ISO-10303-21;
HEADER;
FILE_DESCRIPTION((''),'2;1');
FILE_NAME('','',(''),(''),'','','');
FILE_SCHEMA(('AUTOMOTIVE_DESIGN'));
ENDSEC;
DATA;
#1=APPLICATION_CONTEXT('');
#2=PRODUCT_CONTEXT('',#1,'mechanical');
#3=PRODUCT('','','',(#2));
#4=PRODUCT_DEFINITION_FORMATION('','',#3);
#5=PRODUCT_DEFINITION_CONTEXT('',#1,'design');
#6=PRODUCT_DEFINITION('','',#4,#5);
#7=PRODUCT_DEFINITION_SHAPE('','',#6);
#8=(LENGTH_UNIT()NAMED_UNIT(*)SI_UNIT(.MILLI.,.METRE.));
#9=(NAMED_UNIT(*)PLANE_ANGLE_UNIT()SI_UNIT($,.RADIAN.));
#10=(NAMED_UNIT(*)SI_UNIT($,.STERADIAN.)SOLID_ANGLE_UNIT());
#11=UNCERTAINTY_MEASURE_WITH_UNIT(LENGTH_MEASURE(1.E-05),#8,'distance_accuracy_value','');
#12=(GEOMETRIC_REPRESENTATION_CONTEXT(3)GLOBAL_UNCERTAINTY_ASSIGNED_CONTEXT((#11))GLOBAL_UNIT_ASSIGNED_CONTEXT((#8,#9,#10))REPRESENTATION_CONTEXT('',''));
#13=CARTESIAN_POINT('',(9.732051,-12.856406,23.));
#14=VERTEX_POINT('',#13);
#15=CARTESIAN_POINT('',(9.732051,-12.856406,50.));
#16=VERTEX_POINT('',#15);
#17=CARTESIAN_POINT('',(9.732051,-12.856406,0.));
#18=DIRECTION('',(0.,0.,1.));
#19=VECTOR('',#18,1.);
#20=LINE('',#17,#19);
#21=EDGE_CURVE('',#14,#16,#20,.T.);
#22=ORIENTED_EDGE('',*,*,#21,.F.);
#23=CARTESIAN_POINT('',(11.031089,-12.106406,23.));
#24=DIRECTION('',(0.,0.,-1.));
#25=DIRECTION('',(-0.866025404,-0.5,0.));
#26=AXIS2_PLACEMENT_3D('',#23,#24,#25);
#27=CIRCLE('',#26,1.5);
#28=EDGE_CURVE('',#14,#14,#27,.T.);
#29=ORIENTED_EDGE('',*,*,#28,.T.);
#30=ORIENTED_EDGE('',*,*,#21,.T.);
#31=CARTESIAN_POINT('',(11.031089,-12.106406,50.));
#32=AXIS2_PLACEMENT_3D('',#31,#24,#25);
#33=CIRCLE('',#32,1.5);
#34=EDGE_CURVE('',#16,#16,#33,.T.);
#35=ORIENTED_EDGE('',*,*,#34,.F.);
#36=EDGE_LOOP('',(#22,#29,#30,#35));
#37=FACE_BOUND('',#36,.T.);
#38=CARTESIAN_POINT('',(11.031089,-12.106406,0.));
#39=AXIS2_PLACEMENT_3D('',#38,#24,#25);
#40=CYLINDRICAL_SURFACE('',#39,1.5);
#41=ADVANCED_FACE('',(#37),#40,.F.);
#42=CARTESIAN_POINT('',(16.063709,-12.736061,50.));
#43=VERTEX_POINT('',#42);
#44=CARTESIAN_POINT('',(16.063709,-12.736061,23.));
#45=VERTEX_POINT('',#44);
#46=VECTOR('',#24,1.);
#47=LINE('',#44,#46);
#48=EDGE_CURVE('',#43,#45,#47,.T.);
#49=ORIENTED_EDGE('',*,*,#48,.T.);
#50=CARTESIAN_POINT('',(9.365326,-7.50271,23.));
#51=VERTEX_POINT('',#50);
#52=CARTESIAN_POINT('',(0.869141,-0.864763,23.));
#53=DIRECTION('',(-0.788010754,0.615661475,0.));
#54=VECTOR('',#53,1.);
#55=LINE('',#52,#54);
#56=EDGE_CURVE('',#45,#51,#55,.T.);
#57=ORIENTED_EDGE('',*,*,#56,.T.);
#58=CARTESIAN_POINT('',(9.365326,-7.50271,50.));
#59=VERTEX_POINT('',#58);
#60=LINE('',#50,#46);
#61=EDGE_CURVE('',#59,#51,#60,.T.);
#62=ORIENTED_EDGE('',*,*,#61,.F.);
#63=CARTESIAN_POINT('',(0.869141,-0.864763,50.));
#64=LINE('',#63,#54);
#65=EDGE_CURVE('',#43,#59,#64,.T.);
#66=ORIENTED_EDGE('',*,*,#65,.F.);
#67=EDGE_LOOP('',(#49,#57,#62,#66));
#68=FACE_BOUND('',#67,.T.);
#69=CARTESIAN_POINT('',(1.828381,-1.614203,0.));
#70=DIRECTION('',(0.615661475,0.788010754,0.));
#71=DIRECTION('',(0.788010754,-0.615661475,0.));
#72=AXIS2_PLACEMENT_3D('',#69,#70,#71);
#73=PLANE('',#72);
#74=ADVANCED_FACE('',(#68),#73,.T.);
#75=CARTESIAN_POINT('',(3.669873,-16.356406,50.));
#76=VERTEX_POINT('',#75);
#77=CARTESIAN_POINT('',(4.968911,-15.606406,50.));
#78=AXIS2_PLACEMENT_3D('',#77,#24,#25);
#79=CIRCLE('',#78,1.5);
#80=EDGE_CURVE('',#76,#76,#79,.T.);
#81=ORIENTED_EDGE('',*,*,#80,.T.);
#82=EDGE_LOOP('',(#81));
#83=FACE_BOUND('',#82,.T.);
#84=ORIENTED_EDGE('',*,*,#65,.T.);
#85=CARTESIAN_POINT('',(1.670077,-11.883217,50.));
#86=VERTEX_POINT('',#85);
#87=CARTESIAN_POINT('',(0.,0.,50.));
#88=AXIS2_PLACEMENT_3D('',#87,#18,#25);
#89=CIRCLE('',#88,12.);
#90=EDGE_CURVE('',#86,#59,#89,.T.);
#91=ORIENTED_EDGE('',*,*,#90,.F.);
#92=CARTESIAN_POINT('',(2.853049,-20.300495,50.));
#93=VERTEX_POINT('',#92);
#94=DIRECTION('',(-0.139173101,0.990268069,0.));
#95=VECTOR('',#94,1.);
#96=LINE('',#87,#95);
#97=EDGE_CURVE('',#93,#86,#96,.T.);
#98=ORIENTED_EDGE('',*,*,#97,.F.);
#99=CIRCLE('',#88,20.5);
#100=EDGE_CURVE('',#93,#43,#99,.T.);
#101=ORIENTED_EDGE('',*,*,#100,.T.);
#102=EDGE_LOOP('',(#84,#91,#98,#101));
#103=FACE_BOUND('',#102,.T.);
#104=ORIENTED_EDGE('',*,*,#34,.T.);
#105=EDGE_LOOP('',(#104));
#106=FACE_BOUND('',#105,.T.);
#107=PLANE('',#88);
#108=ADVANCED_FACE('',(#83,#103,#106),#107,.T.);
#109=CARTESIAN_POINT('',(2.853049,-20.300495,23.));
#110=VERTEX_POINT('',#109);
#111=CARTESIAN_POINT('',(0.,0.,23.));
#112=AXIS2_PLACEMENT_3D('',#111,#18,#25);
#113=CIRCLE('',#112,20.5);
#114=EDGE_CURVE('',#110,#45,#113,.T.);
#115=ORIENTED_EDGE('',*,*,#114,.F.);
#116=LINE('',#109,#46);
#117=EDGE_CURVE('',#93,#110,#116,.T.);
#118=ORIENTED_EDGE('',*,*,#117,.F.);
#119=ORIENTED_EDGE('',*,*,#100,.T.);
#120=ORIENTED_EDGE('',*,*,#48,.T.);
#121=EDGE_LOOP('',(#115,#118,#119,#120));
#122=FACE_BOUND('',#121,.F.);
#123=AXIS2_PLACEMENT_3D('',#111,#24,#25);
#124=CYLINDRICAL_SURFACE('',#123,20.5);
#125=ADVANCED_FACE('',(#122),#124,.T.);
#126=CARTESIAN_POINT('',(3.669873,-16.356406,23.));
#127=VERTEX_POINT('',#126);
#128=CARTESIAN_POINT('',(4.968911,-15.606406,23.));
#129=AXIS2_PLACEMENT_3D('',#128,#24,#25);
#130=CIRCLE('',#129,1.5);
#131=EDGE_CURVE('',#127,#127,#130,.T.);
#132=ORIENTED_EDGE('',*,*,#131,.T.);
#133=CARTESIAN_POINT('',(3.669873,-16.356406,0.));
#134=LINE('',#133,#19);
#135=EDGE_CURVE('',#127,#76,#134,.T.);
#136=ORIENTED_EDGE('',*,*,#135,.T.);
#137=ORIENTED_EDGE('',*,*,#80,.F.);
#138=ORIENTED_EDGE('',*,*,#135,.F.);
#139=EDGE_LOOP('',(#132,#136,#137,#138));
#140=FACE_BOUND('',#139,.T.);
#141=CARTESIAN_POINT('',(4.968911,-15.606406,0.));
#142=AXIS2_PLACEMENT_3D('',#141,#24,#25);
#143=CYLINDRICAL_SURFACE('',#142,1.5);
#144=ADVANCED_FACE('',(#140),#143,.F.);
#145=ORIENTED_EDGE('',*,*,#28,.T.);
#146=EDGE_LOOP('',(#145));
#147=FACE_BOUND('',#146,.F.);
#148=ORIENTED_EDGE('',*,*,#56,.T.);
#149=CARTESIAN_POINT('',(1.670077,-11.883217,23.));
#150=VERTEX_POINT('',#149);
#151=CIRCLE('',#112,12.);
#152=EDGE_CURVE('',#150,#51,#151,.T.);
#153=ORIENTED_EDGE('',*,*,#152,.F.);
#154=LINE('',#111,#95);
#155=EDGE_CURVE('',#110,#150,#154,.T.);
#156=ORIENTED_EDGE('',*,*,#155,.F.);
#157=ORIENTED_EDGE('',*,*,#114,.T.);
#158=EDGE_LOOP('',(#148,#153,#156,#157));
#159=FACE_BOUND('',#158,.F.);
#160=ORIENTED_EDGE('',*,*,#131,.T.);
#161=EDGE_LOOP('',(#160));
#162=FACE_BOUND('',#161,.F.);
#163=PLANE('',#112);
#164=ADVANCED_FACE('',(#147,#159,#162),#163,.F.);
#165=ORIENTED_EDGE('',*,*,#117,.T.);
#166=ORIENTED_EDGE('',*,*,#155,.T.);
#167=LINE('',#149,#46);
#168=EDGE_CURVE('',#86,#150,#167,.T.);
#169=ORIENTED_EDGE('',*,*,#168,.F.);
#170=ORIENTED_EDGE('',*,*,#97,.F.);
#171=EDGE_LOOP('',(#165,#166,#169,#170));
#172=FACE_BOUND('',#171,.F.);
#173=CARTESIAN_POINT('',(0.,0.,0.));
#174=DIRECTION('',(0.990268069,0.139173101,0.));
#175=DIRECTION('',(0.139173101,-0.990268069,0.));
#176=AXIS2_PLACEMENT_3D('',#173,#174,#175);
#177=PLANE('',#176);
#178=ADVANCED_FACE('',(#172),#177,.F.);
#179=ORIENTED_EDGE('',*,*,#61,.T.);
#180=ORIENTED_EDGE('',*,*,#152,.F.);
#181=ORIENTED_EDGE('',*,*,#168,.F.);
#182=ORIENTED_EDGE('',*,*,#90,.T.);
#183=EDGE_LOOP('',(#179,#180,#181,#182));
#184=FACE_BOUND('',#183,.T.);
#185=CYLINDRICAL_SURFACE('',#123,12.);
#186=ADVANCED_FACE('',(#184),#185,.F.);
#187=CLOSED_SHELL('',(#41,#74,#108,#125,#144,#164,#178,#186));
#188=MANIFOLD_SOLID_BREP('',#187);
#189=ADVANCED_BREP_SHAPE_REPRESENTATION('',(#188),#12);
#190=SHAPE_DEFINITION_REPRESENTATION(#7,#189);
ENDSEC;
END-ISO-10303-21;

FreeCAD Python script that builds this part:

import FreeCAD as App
import Part
import Sketcher
Q = App.Units.Quantity


def add_polygon(sketch, points):
    """Adds a closed chain of lines whose ends are joined by coincident constraints."""
    first, n = sketch.GeometryCount, len(points)
    for a, b in zip(points, points[1:] + points[:1]):
        sketch.addGeometry(Part.LineSegment(App.Vector(*a, 0), App.Vector(*b, 0)), False)
    for i in range(n):
        sketch.addConstraint(Sketcher.Constraint("Coincident", first + i, 2, first + (i + 1) % n, 1))

doc = App.newDocument("Part")
body = doc.addObject("PartDesign::Body", "Body")

sketch1 = body.newObject("Sketcher::SketchObject", "Sketch")
sketch1.AttachmentSupport = (doc.getObject("XY_Plane"), [""])
sketch1.MapMode = "FlatFace"
sketch1.addGeometry(Part.Circle(App.Vector(-3.5, 16, 0), App.Vector(0, 0, 1), 1.5), False)
sketch1.addConstraint(Sketcher.Constraint("Diameter", 0, Q("3 mm")))
sketch1.addConstraint(Sketcher.Constraint("DistanceY", -1, 1, 0, 3, Q("16 mm")))
sketch1.addConstraint(Sketcher.Constraint("DistanceX", 0, 3, -1, 1, Q("3.5 mm")))
pad1 = body.newObject("PartDesign::Pad", "Pad")
pad1.Profile = sketch1
pad1.Length = 60
body2 = doc.addObject("PartDesign::Body", "Body001")
body2.AllowCompound = True

sketch2 = body2.newObject("Sketcher::SketchObject", "Sketch001")
sketch2.AttachmentSupport = (doc.getObject("XY_Plane001"), [""])
sketch2.MapMode = "FlatFace"
sketch2.addGeometry(Part.Circle(App.Vector(3.5, 16, 0), App.Vector(0, 0, 1), 1.5), False)
sketch2.addConstraint(Sketcher.Constraint("Diameter", 0, Q("3 mm")))
sketch2.addConstraint(Sketcher.Constraint("DistanceY", -1, 1, 0, 3, Q("16 mm")))
sketch2.addConstraint(Sketcher.Constraint("DistanceX", -1, 1, 0, 3, Q("3.5 mm")))
pad2 = body2.newObject("PartDesign::Pad", "Pad001")
pad2.Profile = sketch2
pad2.Length = 60
doc.recompute()

boolean = body2.newObject("PartDesign::Boolean", "Boolean")
boolean.Type = "Fuse"
boolean.addObjects([body])
body3 = doc.addObject("PartDesign::Body", "Body002")

sketch3 = body3.newObject("Sketcher::SketchObject", "Sketch002")
sketch3.AttachmentSupport = (doc.getObject("XY_Plane002"), [""])
sketch3.MapMode = "FlatFace"
add_polygon(sketch3, [(0, 40), (0, 0), (20, 0), (20, 40)])
sketch3.addConstraint(Sketcher.Constraint("Vertical", 0))
sketch3.addConstraint(Sketcher.Constraint("Horizontal", 1))
sketch3.addConstraint(Sketcher.Constraint("Vertical", 2))
sketch3.addConstraint(Sketcher.Constraint("Horizontal", 3))
sketch3.addConstraint(Sketcher.Constraint("Coincident", 0, 2, -1, 1))
sketch3.addConstraint(Sketcher.Constraint("DistanceX", 1, 1, 1, 2, Q("20 mm")))
sketch3.addConstraint(Sketcher.Constraint("DistanceY", 0, 2, 0, 1, Q("40 mm")))
pad3 = body3.newObject("PartDesign::Pad", "Pad002")
pad3.Profile = sketch3
pad3.Length = 60
body4 = doc.addObject("PartDesign::Body", "Body003")
doc.recompute()

body3.Placement = App.Placement(App.Vector(0, 0, 0), App.Rotation(App.Vector(0, 0, -1), 22))
boolean2 = body4.newObject("PartDesign::Boolean", "Boolean001")
boolean2.Type = "Fuse"
boolean2.addObjects([body3])
body5 = doc.addObject("PartDesign::Body", "Body004")

sketch4 = body5.newObject("Sketcher::SketchObject", "Sketch003")
sketch4.AttachmentSupport = (doc.getObject("XY_Plane004"), [""])
sketch4.MapMode = "FlatFace"
add_polygon(sketch4, [(0, 40), (0, 0), (20, 0), (20, 40)])
sketch4.addConstraint(Sketcher.Constraint("Vertical", 0))
sketch4.addConstraint(Sketcher.Constraint("Horizontal", 1))
sketch4.addConstraint(Sketcher.Constraint("Vertical", 2))
sketch4.addConstraint(Sketcher.Constraint("Horizontal", 3))
sketch4.addConstraint(Sketcher.Constraint("Coincident", 0, 2, -1, 1))
sketch4.addConstraint(Sketcher.Constraint("DistanceX", 1, 1, 1, 2, Q("20 mm")))
sketch4.addConstraint(Sketcher.Constraint("DistanceY", 0, 2, 0, 1, Q("40 mm")))
pad4 = body5.newObject("PartDesign::Pad", "Pad003")
pad4.Profile = sketch4
pad4.Length = 60
body6 = doc.addObject("PartDesign::Body", "Body005")
doc.recompute()

body5.Placement = App.Placement(App.Vector(-19.32, -5.18, 0), App.Rotation(App.Vector(0, 0, 1), 22))
boolean3 = body6.newObject("PartDesign::Boolean", "Boolean002")
boolean3.Type = "Fuse"
boolean3.addObjects([body5])
body7 = doc.addObject("PartDesign::Body", "Body006")

sketch5 = body7.newObject("Sketcher::SketchObject", "Sketch004")
sketch5.AttachmentSupport = (doc.getObject("XY_Plane006"), [""])
sketch5.MapMode = "FlatFace"
add_polygon(sketch5, [(-30, 5), (-30, -35), (30, -35), (30, 5)])
sketch5.addConstraint(Sketcher.Constraint("Vertical", 0))
sketch5.addConstraint(Sketcher.Constraint("Horizontal", 1))
sketch5.addConstraint(Sketcher.Constraint("Vertical", 2))
sketch5.addConstraint(Sketcher.Constraint("Horizontal", 3))
sketch5.addConstraint(Sketcher.Constraint("DistanceX", 1, 1, 1, 2, Q("60 mm")))
sketch5.addConstraint(Sketcher.Constraint("DistanceY", 0, 2, 0, 1, Q("40 mm")))
sketch5.addConstraint(Sketcher.Constraint("DistanceX", 0, 2, -1, 1, Q("30 mm")))
sketch5.addConstraint(Sketcher.Constraint("DistanceY", 0, 2, -1, 1, Q("35 mm")))
pad5 = body7.newObject("PartDesign::Pad", "Pad004")
pad5.Profile = sketch5
pad5.Length = 60
body8 = doc.addObject("PartDesign::Body", "Body007")

sketch6 = body8.newObject("Sketcher::SketchObject", "Sketch005")
sketch6.AttachmentSupport = (doc.getObject("XY_Plane007"), [""])
sketch6.MapMode = "FlatFace"
sketch6.AttachmentOffset = App.Placement(App.Vector(0, 0, 23), App.Rotation())
sketch6.addGeometry(Part.Circle(App.Vector(0, 0, 0), App.Vector(0, 0, 1), 20), False)
sketch6.addGeometry(Part.Circle(App.Vector(0, 0, 0), App.Vector(0, 0, 1), 12), False)
sketch6.addConstraint(Sketcher.Constraint("Coincident", 0, 3, -1, 1))
sketch6.addConstraint(Sketcher.Constraint("Coincident", 1, 3, -1, 1))
sketch6.addConstraint(Sketcher.Constraint("Diameter", 0, Q("41 mm")))
sketch6.addConstraint(Sketcher.Constraint("Diameter", 1, Q("24 mm")))
pad6 = body8.newObject("PartDesign::Pad", "Pad005")
pad6.Profile = sketch6
pad6.Length = 27
doc.recompute()

boolean4 = body8.newObject("PartDesign::Boolean", "Boolean003")
boolean4.Type = "Cut"
boolean4.addObjects([body7])
doc.recompute()

boolean5 = body8.newObject("PartDesign::Boolean", "Boolean004")
boolean5.Type = "Cut"
boolean5.addObjects([body6])
doc.recompute()

boolean6 = body8.newObject("PartDesign::Boolean", "Boolean005")
boolean6.Type = "Cut"
boolean6.addObjects([body4])
doc.recompute()

boolean7 = body8.newObject("PartDesign::Boolean", "Boolean006")
boolean7.Type = "Cut"
boolean7.addObjects([body2])
body9 = doc.addObject("PartDesign::Body", "Body008")
doc.recompute()

body8.Placement = App.Placement(App.Vector(0, 0, 0), App.Rotation(App.Vector(0, 0, 1), 210))
boolean8 = body9.newObject("PartDesign::Boolean", "Boolean007")
boolean8.Type = "Fuse"
boolean8.addObjects([body8])

doc.recompute()
